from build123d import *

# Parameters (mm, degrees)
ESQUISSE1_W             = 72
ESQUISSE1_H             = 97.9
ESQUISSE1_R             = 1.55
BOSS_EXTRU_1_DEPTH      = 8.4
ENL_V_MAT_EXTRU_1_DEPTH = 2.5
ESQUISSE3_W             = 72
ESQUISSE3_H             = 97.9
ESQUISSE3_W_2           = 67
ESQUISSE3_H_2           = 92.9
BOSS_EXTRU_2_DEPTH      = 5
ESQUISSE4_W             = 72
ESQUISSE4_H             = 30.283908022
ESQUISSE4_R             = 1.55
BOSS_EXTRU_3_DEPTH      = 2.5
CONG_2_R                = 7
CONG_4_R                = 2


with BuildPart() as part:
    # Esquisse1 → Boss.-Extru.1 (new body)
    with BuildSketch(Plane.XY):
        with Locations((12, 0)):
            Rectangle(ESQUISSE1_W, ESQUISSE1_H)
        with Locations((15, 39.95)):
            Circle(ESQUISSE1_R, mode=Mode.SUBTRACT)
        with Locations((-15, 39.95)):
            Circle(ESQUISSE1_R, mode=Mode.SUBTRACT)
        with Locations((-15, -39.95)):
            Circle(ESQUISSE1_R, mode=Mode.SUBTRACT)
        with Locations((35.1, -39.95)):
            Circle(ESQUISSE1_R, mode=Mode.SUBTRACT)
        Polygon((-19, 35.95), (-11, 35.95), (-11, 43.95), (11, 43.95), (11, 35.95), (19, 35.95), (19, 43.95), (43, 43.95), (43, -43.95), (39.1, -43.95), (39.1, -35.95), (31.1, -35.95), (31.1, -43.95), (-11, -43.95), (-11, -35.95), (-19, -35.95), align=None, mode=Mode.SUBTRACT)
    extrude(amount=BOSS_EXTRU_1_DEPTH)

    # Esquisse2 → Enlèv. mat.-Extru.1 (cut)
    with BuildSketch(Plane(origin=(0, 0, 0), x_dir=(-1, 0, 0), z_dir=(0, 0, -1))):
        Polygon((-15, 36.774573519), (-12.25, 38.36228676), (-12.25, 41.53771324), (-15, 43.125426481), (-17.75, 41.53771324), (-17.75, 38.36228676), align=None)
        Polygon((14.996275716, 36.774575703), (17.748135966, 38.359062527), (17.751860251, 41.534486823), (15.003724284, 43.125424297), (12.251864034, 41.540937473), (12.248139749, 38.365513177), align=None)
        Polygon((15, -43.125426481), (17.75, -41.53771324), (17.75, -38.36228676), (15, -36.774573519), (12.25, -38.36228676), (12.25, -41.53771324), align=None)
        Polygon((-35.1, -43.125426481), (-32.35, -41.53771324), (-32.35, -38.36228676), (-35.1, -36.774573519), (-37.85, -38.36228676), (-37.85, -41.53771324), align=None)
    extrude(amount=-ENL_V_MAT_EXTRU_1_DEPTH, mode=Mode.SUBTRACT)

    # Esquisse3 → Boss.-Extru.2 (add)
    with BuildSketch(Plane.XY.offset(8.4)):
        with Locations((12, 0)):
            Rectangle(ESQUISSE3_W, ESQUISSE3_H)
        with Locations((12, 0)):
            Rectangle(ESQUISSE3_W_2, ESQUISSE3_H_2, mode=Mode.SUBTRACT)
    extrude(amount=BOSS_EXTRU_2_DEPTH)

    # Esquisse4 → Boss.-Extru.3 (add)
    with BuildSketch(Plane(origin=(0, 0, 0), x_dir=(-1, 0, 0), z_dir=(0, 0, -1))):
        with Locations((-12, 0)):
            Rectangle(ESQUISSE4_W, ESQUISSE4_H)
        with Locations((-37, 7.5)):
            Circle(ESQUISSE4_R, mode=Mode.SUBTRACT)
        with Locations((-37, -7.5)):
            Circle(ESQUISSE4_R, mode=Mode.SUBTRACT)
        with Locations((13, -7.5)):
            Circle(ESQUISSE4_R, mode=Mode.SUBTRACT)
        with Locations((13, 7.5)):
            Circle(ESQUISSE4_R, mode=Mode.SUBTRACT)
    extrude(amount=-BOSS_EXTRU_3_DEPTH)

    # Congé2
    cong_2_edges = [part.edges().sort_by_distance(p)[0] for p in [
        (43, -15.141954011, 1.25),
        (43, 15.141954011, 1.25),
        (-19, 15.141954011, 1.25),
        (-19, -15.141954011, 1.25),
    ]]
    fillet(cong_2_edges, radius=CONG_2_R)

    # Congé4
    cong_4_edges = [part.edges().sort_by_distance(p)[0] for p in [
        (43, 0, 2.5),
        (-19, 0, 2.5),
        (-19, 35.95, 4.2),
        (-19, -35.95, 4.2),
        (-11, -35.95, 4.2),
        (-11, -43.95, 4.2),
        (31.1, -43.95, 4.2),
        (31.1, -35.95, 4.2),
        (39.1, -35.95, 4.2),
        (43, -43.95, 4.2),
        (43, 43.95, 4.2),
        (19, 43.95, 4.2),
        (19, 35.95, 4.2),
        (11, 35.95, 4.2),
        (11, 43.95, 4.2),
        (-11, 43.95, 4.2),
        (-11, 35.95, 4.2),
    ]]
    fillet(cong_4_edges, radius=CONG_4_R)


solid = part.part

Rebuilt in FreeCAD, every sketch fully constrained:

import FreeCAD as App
import Part
import Sketcher
Q = App.Units.Quantity


def edges_at(feature, points):
    """Names of the edges that pass closest to the given points."""
    edges = feature.Shape.Edges
    near = lambda p: min(range(len(edges)), key=lambda i: edges[i].distToShape(Part.Vertex(*p))[0])
    return sorted({f"Edge{near(p) + 1}" for p in points})

doc = App.newDocument("Part")
body = doc.addObject("PartDesign::Body", "Body")

# Sketch on XY plane
sketch1 = body.newObject("Sketcher::SketchObject", "Sketch")
sketch1.AttachmentSupport = (doc.getObject("XY_Plane"), [""])
sketch1.MapMode = "FlatFace"
sketch1.addGeometry([
    Part.LineSegment(App.Vector(-24, 49, 0), App.Vector(-24, -49, 0)),  # 0
    Part.LineSegment(App.Vector(-24, -49, 0), App.Vector(48, -49, 0)),  # 1
    Part.LineSegment(App.Vector(48, -49, 0), App.Vector(48, 49, 0)),  # 2
    Part.LineSegment(App.Vector(48, 49, 0), App.Vector(-24, 49, 0)),  # 3
    Part.Circle(App.Vector(-15, -40, 0), App.Vector(0, 0, 1), 1.6),  # 4
    Part.Circle(App.Vector(35.1, -40, 0), App.Vector(0, 0, 1), 1.6),  # 5
    Part.Circle(App.Vector(-15, 40, 0), App.Vector(0, 0, 1), 1.6),  # 6
    Part.LineSegment(App.Vector(-19, -36, 0), App.Vector(-19, 36, 0)),  # 7
    Part.LineSegment(App.Vector(-19, 36, 0), App.Vector(-11, 36, 0)),  # 8
    Part.LineSegment(App.Vector(-11, 36, 0), App.Vector(-11, 44, 0)),  # 9
    Part.LineSegment(App.Vector(-11, 44, 0), App.Vector(11, 44, 0)),  # 10
    Part.LineSegment(App.Vector(11, 44, 0), App.Vector(11, 36, 0)),  # 11
    Part.LineSegment(App.Vector(11, 36, 0), App.Vector(19, 36, 0)),  # 12
    Part.LineSegment(App.Vector(19, 36, 0), App.Vector(19, 44, 0)),  # 13
    Part.LineSegment(App.Vector(19, 44, 0), App.Vector(43, 44, 0)),  # 14
    Part.LineSegment(App.Vector(43, 44, 0), App.Vector(43, -44, 0)),  # 15
    Part.LineSegment(App.Vector(43, -44, 0), App.Vector(39.1, -44, 0)),  # 16
    Part.LineSegment(App.Vector(39.1, -44, 0), App.Vector(39.1, -36, 0)),  # 17
    Part.LineSegment(App.Vector(39.1, -36, 0), App.Vector(31.1, -36, 0)),  # 18
    Part.LineSegment(App.Vector(31.1, -36, 0), App.Vector(31.1, -44, 0)),  # 19
    Part.LineSegment(App.Vector(31.1, -44, 0), App.Vector(-11, -44, 0)),  # 20
    Part.LineSegment(App.Vector(-11, -44, 0), App.Vector(-11, -36, 0)),  # 21
    Part.LineSegment(App.Vector(-11, -36, 0), App.Vector(-19, -36, 0)),  # 22
    Part.Circle(App.Vector(15, 40, 0), App.Vector(0, 0, 1), 1.6),  # 23
], False)
sketch1.addConstraint([
    Sketcher.Constraint("Coincident", 0, 2, 1, 1),
    Sketcher.Constraint("Coincident", 1, 2, 2, 1),
    Sketcher.Constraint("Coincident", 2, 2, 3, 1),
    Sketcher.Constraint("Coincident", 3, 2, 0, 1),
    Sketcher.Constraint("Coincident", 7, 2, 8, 1),
    Sketcher.Constraint("Coincident", 8, 2, 9, 1),
    Sketcher.Constraint("Coincident", 9, 2, 10, 1),
    Sketcher.Constraint("Coincident", 10, 2, 11, 1),
    Sketcher.Constraint("Coincident", 11, 2, 12, 1),
    Sketcher.Constraint("Coincident", 12, 2, 13, 1),
    Sketcher.Constraint("Coincident", 13, 2, 14, 1),
    Sketcher.Constraint("Coincident", 14, 2, 15, 1),
    Sketcher.Constraint("Coincident", 15, 2, 16, 1),
    Sketcher.Constraint("Coincident", 16, 2, 17, 1),
    Sketcher.Constraint("Coincident", 17, 2, 18, 1),
    Sketcher.Constraint("Coincident", 18, 2, 19, 1),
    Sketcher.Constraint("Coincident", 19, 2, 20, 1),
    Sketcher.Constraint("Coincident", 20, 2, 21, 1),
    Sketcher.Constraint("Coincident", 21, 2, 22, 1),
    Sketcher.Constraint("Coincident", 22, 2, 7, 1),
    Sketcher.Constraint("Vertical", 0),
    Sketcher.Constraint("Horizontal", 1),
    Sketcher.Constraint("Vertical", 2),
    Sketcher.Constraint("Horizontal", 3),
    Sketcher.Constraint("Vertical", 7),
    Sketcher.Constraint("Horizontal", 8),
    Sketcher.Constraint("Vertical", 9),
    Sketcher.Constraint("Horizontal", 10),
    Sketcher.Constraint("Vertical", 11),
    Sketcher.Constraint("Horizontal", 12),
    Sketcher.Constraint("Vertical", 13),
    Sketcher.Constraint("Horizontal", 14),
    Sketcher.Constraint("Vertical", 15),
    Sketcher.Constraint("Horizontal", 16),
    Sketcher.Constraint("Vertical", 17),
    Sketcher.Constraint("Horizontal", 18),
    Sketcher.Constraint("Vertical", 19),
    Sketcher.Constraint("Horizontal", 20),
    Sketcher.Constraint("Vertical", 21),
    Sketcher.Constraint("Horizontal", 22),
    Sketcher.Constraint("Equal", 4, 5),
    Sketcher.Constraint("Equal", 5, 6),
    Sketcher.Constraint("Equal", 6, 23),
    Sketcher.Constraint("Symmetric", 4, 3, 23, 3, -1, 1),
    Sketcher.Constraint("Symmetric", 10, 2, 20, 2, -1, 1),
    Sketcher.Constraint("Symmetric", 12, 2, 22, 2, -1, 1),
    Sketcher.Constraint("Symmetric", 6, 3, 23, 3, -2),
    Sketcher.Constraint("Symmetric", 8, 2, 11, 2, -2),
    Sketcher.Constraint("Horizontal", 4, 3, 5, 3),
    Sketcher.Constraint("Horizontal", 10, 2, 13, 2),
    Sketcher.Constraint("Horizontal", 16, 2, 19, 2),
    Sketcher.Constraint("Horizontal", 18, 2, 21, 2),
    Sketcher.Constraint("Equal", 12, 18),
    Sketcher.Constraint("Equal", 22, 9),
    Sketcher.Constraint("Diameter", 4, 3.1),
    Sketcher.Constraint("DistanceX", 1, 1, 1, 2, 72.0),
    Sketcher.Constraint("DistanceX", 8, 1, 8, 2, 8.0),
    Sketcher.Constraint("DistanceX", 10, 1, 10, 2, 22.0),
    Sketcher.Constraint("DistanceX", 14, 1, 14, 2, 24.0),
    Sketcher.Constraint("DistanceX", 16, 2, 16, 1, 3.9),
    Sketcher.Constraint("DistanceY", 0, 2, 0, 1, 97.9),
    Sketcher.Constraint("DistanceY", 7, 1, 7, 2, 71.9),
    Sketcher.Constraint("DistanceX", 4, 3, -1, 1, 15.0),
    Sketcher.Constraint("DistanceX", 0, 2, -1, 1, 24.0),
    Sketcher.Constraint("DistanceY", 0, 2, 4, 3, 9.0),
    Sketcher.Constraint("DistanceY", 23, 3, 2, 2, 9.0),
    Sketcher.Constraint("DistanceX", 5, 3, 16, 2, 4.0),
])
pad1 = body.newObject("PartDesign::Pad", "Pad")
pad1.Profile = sketch1
pad1.Length = 8.4

# Sketch on XY plane
sketch2 = body.newObject("Sketcher::SketchObject", "Sketch001")
sketch2.AttachmentSupport = (doc.getObject("XY_Plane"), [""])
sketch2.MapMode = "FlatFace"
sketch2.addGeometry([
    Part.LineSegment(App.Vector(15, 36.8, 0), App.Vector(12.2, 38.4, 0)),  # 0
    Part.LineSegment(App.Vector(12.2, 38.4, 0), App.Vector(12.2, 41.5, 0)),  # 1
    Part.LineSegment(App.Vector(12.2, 41.5, 0), App.Vector(15, 43.1, 0)),  # 2
    Part.LineSegment(App.Vector(15, 43.1, 0), App.Vector(17.8, 41.5, 0)),  # 3
    Part.LineSegment(App.Vector(17.8, 41.5, 0), App.Vector(17.8, 38.4, 0)),  # 4
    Part.LineSegment(App.Vector(17.8, 38.4, 0), App.Vector(15, 36.8, 0)),  # 5
    Part.LineSegment(App.Vector(-15, 36.8, 0), App.Vector(-17.7, 38.4, 0)),  # 6
    Part.LineSegment(App.Vector(-17.7, 38.4, 0), App.Vector(-17.8, 41.5, 0)),  # 7
    Part.LineSegment(App.Vector(-17.8, 41.5, 0), App.Vector(-15, 43.1, 0)),  # 8
    Part.LineSegment(App.Vector(-15, 43.1, 0), App.Vector(-12.3, 41.5, 0)),  # 9
    Part.LineSegment(App.Vector(-12.3, 41.5, 0), App.Vector(-12.2, 38.4, 0)),  # 10
    Part.LineSegment(App.Vector(-12.2, 38.4, 0), App.Vector(-15, 36.8, 0)),  # 11
    Part.LineSegment(App.Vector(-15, -43.1, 0), App.Vector(-17.8, -41.5, 0)),  # 12
    Part.LineSegment(App.Vector(-17.8, -41.5, 0), App.Vector(-17.8, -38.4, 0)),  # 13
    Part.LineSegment(App.Vector(-17.8, -38.4, 0), App.Vector(-15, -36.8, 0)),  # 14
    Part.LineSegment(App.Vector(-15, -36.8, 0), App.Vector(-12.2, -38.4, 0)),  # 15
    Part.LineSegment(App.Vector(-12.2, -38.4, 0), App.Vector(-12.2, -41.5, 0)),  # 16
    Part.LineSegment(App.Vector(-12.2, -41.5, 0), App.Vector(-15, -43.1, 0)),  # 17
    Part.LineSegment(App.Vector(35.1, -43.1, 0), App.Vector(32.4, -41.5, 0)),  # 18
    Part.LineSegment(App.Vector(32.4, -41.5, 0), App.Vector(32.4, -38.4, 0)),  # 19
    Part.LineSegment(App.Vector(32.4, -38.4, 0), App.Vector(35.1, -36.8, 0)),  # 20
    Part.LineSegment(App.Vector(35.1, -36.8, 0), App.Vector(37.9, -38.4, 0)),  # 21
    Part.LineSegment(App.Vector(37.9, -38.4, 0), App.Vector(37.9, -41.5, 0)),  # 22
    Part.LineSegment(App.Vector(37.9, -41.5, 0), App.Vector(35.1, -43.1, 0)),  # 23
], False)
sketch2.addConstraint([
    Sketcher.Constraint("Coincident", 0, 2, 1, 1),
    Sketcher.Constraint("Coincident", 1, 2, 2, 1),
    Sketcher.Constraint("Coincident", 2, 2, 3, 1),
    Sketcher.Constraint("Coincident", 3, 2, 4, 1),
    Sketcher.Constraint("Coincident", 4, 2, 5, 1),
    Sketcher.Constraint("Coincident", 5, 2, 0, 1),
    Sketcher.Constraint("Coincident", 6, 2, 7, 1),
    Sketcher.Constraint("Coincident", 7, 2, 8, 1),
    Sketcher.Constraint("Coincident", 8, 2, 9, 1),
    Sketcher.Constraint("Coincident", 9, 2, 10, 1),
    Sketcher.Constraint("Coincident", 10, 2, 11, 1),
    Sketcher.Constraint("Coincident", 11, 2, 6, 1),
    Sketcher.Constraint("Coincident", 12, 2, 13, 1),
    Sketcher.Constraint("Coincident", 13, 2, 14, 1),
    Sketcher.Constraint("Coincident", 14, 2, 15, 1),
    Sketcher.Constraint("Coincident", 15, 2, 16, 1),
    Sketcher.Constraint("Coincident", 16, 2, 17, 1),
    Sketcher.Constraint("Coincident", 17, 2, 12, 1),
    Sketcher.Constraint("Coincident", 18, 2, 19, 1),
    Sketcher.Constraint("Coincident", 19, 2, 20, 1),
    Sketcher.Constraint("Coincident", 20, 2, 21, 1),
    Sketcher.Constraint("Coincident", 21, 2, 22, 1),
    Sketcher.Constraint("Coincident", 22, 2, 23, 1),
    Sketcher.Constraint("Coincident", 23, 2, 18, 1),
    Sketcher.Constraint("Vertical", 1),
    Sketcher.Constraint("Vertical", 4),
    Sketcher.Constraint("Vertical", 13),
    Sketcher.Constraint("Vertical", 16),
    Sketcher.Constraint("Vertical", 19),
    Sketcher.Constraint("Vertical", 22),
    Sketcher.Constraint("Symmetric", 3, 2, 12, 2, -1, 1),
    Sketcher.Constraint("Symmetric", 5, 2, 14, 2, -1, 1),
    Sketcher.Constraint("Symmetric", 0, 2, 15, 2, -1, 1),
    Sketcher.Constraint("Symmetric", 2, 2, 17, 2, -1, 1),
    Sketcher.Constraint("Parallel", 0, 3),
    Sketcher.Constraint("Parallel", 2, 5),
    Sketcher.Constraint("Parallel", 6, 9),
    Sketcher.Constraint("Parallel", 7, 10),
    Sketcher.Constraint("Parallel", 8, 11),
    Sketcher.Constraint("Parallel", 5, 14),
    Sketcher.Constraint("Parallel", 14, 17),
    Sketcher.Constraint("Parallel", 15, 18),
    Sketcher.Constraint("Parallel", 17, 20),
    Sketcher.Constraint("Parallel", 18, 21),
    Sketcher.Constraint("Parallel", 20, 23),
    Sketcher.Constraint("Horizontal", 1, 2, 3, 2),
    Sketcher.Constraint("Horizontal", 0, 2, 4, 2),
    Sketcher.Constraint("Horizontal", 16, 2, 18, 2),
    Sketcher.Constraint("Horizontal", 15, 2, 19, 2),
    Sketcher.Constraint("Horizontal", 14, 2, 20, 2),
    Sketcher.Constraint("Horizontal", 19, 2, 21, 2),
    Sketcher.Constraint("Horizontal", 18, 2, 22, 2),
    Sketcher.Constraint("Vertical", 2, 2, 5, 2),
    Sketcher.Constraint("Equal", 5, 6),
    Sketcher.Constraint("Equal", 6, 7),
    Sketcher.Constraint("Equal", 7, 8),
    Sketcher.Constraint("Equal", 8, 9),
    Sketcher.Constraint("Angle", 0, Q("150 deg")),
    Sketcher.Constraint("DistanceX", -1, 1, 2, 2, 15.0),
    Sketcher.Constraint("DistanceX", -1, 1, 20, 2, 35.1),
    Sketcher.Constraint("DistanceX", 1, 2, 3, 2, 5.5),
    Sketcher.Constraint("DistanceY", 0, 2, 7, 2, 3.1722),
    Sketcher.Constraint("DistanceY", 12, 2, 7, 2, 83.0722),
    Sketcher.Constraint("DistanceY", 13, 2, 10, 2, 76.7278),
    Sketcher.Constraint("DistanceY", 1, 1, 1, 2, 3.175426),
    Sketcher.Constraint("DistanceX", 7, 2, -1, 1, 17.75186),
    Sketcher.Constraint("DistanceX", 10, 2, -1, 1, 12.24814),
    Sketcher.Constraint("DistanceX", 6, 2, 8, 2, 2.744412),
])
pocket1 = body.newObject("PartDesign::Pocket", "Pocket")
pocket1.Profile = sketch2
pocket1.Length = 2.5
pocket1.Reversed = True

# Sketch on XY plane
sketch3 = body.newObject("Sketcher::SketchObject", "Sketch002")
sketch3.AttachmentSupport = (doc.getObject("XY_Plane"), [""])
sketch3.MapMode = "FlatFace"
sketch3.AttachmentOffset = App.Placement(App.Vector(0, 0, 8.4), App.Rotation())
sketch3.addGeometry([
    Part.LineSegment(App.Vector(-24, 49, 0), App.Vector(-24, -49, 0)),  # 0
    Part.LineSegment(App.Vector(-24, -49, 0), App.Vector(48, -49, 0)),  # 1
    Part.LineSegment(App.Vector(48, -49, 0), App.Vector(48, 49, 0)),  # 2
    Part.LineSegment(App.Vector(48, 49, 0), App.Vector(-24, 49, 0)),  # 3
    Part.LineSegment(App.Vector(46, -46, 0), App.Vector(-22, -46, 0)),  # 4
    Part.LineSegment(App.Vector(-22, -46, 0), App.Vector(-22, 46, 0)),  # 5
    Part.LineSegment(App.Vector(-22, 46, 0), App.Vector(46, 46, 0)),  # 6
    Part.LineSegment(App.Vector(46, 46, 0), App.Vector(46, -46, 0)),  # 7
], False)
sketch3.addConstraint([
    Sketcher.Constraint("Coincident", 0, 2, 1, 1),
    Sketcher.Constraint("Coincident", 1, 2, 2, 1),
    Sketcher.Constraint("Coincident", 2, 2, 3, 1),
    Sketcher.Constraint("Coincident", 3, 2, 0, 1),
    Sketcher.Constraint("Coincident", 4, 2, 5, 1),
    Sketcher.Constraint("Coincident", 5, 2, 6, 1),
    Sketcher.Constraint("Coincident", 6, 2, 7, 1),
    Sketcher.Constraint("Coincident", 7, 2, 4, 1),
    Sketcher.Constraint("Vertical", 0),
    Sketcher.Constraint("Horizontal", 1),
    Sketcher.Constraint("Vertical", 2),
    Sketcher.Constraint("Horizontal", 3),
    Sketcher.Constraint("Horizontal", 4),
    Sketcher.Constraint("Vertical", 5),
    Sketcher.Constraint("Horizontal", 6),
    Sketcher.Constraint("Vertical", 7),
    Sketcher.Constraint("DistanceX", 1, 1, 1, 2, 72.0),
    Sketcher.Constraint("DistanceX", 4, 2, 4, 1, 67.0),
    Sketcher.Constraint("DistanceY", 0, 2, 0, 1, 97.9),
    Sketcher.Constraint("DistanceY", 5, 1, 5, 2, 92.9),
    Sketcher.Constraint("DistanceX", 0, 2, -1, 1, 24.0),
    Sketcher.Constraint("DistanceX", 4, 2, -1, 1, 21.5),
    Sketcher.Constraint("DistanceY", 0, 2, 4, 2, 2.5),
    Sketcher.Constraint("DistanceY", 0, 2, -1, 1, 48.95),
])
pad2 = body.newObject("PartDesign::Pad", "Pad001")
pad2.Profile = sketch3
pad2.Length = 5

# Sketch on XY plane
sketch4 = body.newObject("Sketcher::SketchObject", "Sketch003")
sketch4.AttachmentSupport = (doc.getObject("XY_Plane"), [""])
sketch4.MapMode = "FlatFace"
sketch4.addGeometry([
    Part.LineSegment(App.Vector(48, 15.1, 0), App.Vector(48, -15.1, 0)),  # 0
    Part.LineSegment(App.Vector(48, -15.1, 0), App.Vector(-24, -15.1, 0)),  # 1
    Part.LineSegment(App.Vector(-24, -15.1, 0), App.Vector(-24, 15.1, 0)),  # 2
    Part.LineSegment(App.Vector(-24, 15.1, 0), App.Vector(48, 15.1, 0)),  # 3
    Part.Circle(App.Vector(37, -7.5, 0), App.Vector(0, 0, 1), 1.6),  # 4
    Part.Circle(App.Vector(-13, -7.5, 0), App.Vector(0, 0, 1), 1.6),  # 5
    Part.Circle(App.Vector(37, 7.5, 0), App.Vector(0, 0, 1), 1.6),  # 6
    Part.Circle(App.Vector(-13, 7.5, 0), App.Vector(0, 0, 1), 1.6),  # 7
], False)
sketch4.addConstraint([
    Sketcher.Constraint("Coincident", 0, 2, 1, 1),
    Sketcher.Constraint("Coincident", 1, 2, 2, 1),
    Sketcher.Constraint("Coincident", 2, 2, 3, 1),
    Sketcher.Constraint("Coincident", 3, 2, 0, 1),
    Sketcher.Constraint("Vertical", 0),
    Sketcher.Constraint("Horizontal", 1),
    Sketcher.Constraint("Vertical", 2),
    Sketcher.Constraint("Horizontal", 3),
    Sketcher.Constraint("Equal", 4, 5),
    Sketcher.Constraint("Equal", 5, 6),
    Sketcher.Constraint("Equal", 6, 7),
    Sketcher.Constraint("Symmetric", 4, 3, 6, 3, -1),
    Sketcher.Constraint("Symmetric", 5, 3, 7, 3, -1),
    Sketcher.Constraint("Horizontal", 4, 3, 5, 3),
    Sketcher.Constraint("Diameter", 4, 3.1),
    Sketcher.Constraint("DistanceX", 1, 2, 1, 1, 72.0),
    Sketcher.Constraint("DistanceX", -1, 1, 4, 3, 37.0),
    Sketcher.Constraint("DistanceX", 5, 3, -1, 1, 13.0),
    Sketcher.Constraint("DistanceX", -1, 1, 0, 2, 48.0),
    Sketcher.Constraint("DistanceY", 4, 3, 6, 3, 15.0),
    Sketcher.Constraint("DistanceY", 0, 2, 0, 1, 30.283908),
    Sketcher.Constraint("DistanceY", 0, 2, -1, 1, 15.141954),
])
pad3 = body.newObject("PartDesign::Pad", "Pad002")
pad3.Profile = sketch4
pad3.Length = 2.5
doc.recompute()

fillet = body.newObject("PartDesign::Fillet", "Fillet")
fillet.Base = (pad3, edges_at(pad3, [
    (43, -15.142, 1.25),
    (43, 15.142, 1.25),
    (-19, 15.142, 1.25),
    (-19, -15.142, 1.25),
]))
fillet.Radius = 7
doc.recompute()

fillet2 = body.newObject("PartDesign::Fillet", "Fillet001")
fillet2.Base = (fillet, edges_at(fillet, [
    (43, 0, 2.5),
    (-19, 0, 2.5),
    (-19, 35.95, 4.2),
    (-19, -35.95, 4.2),
    (-11, -35.95, 4.2),
    (-11, -43.95, 4.2),
    (31.1, -43.95, 4.2),
    (31.1, -35.95, 4.2),
    (39.1, -35.95, 4.2),
    (43, -43.95, 4.2),
    (43, 43.95, 4.2),
    (19, 43.95, 4.2),
    (19, 35.95, 4.2),
    (11, 35.95, 4.2),
    (11, 43.95, 4.2),
    (-11, 43.95, 4.2),
    (-11, 35.95, 4.2),
]))
fillet2.Radius = 2

doc.recompute()
